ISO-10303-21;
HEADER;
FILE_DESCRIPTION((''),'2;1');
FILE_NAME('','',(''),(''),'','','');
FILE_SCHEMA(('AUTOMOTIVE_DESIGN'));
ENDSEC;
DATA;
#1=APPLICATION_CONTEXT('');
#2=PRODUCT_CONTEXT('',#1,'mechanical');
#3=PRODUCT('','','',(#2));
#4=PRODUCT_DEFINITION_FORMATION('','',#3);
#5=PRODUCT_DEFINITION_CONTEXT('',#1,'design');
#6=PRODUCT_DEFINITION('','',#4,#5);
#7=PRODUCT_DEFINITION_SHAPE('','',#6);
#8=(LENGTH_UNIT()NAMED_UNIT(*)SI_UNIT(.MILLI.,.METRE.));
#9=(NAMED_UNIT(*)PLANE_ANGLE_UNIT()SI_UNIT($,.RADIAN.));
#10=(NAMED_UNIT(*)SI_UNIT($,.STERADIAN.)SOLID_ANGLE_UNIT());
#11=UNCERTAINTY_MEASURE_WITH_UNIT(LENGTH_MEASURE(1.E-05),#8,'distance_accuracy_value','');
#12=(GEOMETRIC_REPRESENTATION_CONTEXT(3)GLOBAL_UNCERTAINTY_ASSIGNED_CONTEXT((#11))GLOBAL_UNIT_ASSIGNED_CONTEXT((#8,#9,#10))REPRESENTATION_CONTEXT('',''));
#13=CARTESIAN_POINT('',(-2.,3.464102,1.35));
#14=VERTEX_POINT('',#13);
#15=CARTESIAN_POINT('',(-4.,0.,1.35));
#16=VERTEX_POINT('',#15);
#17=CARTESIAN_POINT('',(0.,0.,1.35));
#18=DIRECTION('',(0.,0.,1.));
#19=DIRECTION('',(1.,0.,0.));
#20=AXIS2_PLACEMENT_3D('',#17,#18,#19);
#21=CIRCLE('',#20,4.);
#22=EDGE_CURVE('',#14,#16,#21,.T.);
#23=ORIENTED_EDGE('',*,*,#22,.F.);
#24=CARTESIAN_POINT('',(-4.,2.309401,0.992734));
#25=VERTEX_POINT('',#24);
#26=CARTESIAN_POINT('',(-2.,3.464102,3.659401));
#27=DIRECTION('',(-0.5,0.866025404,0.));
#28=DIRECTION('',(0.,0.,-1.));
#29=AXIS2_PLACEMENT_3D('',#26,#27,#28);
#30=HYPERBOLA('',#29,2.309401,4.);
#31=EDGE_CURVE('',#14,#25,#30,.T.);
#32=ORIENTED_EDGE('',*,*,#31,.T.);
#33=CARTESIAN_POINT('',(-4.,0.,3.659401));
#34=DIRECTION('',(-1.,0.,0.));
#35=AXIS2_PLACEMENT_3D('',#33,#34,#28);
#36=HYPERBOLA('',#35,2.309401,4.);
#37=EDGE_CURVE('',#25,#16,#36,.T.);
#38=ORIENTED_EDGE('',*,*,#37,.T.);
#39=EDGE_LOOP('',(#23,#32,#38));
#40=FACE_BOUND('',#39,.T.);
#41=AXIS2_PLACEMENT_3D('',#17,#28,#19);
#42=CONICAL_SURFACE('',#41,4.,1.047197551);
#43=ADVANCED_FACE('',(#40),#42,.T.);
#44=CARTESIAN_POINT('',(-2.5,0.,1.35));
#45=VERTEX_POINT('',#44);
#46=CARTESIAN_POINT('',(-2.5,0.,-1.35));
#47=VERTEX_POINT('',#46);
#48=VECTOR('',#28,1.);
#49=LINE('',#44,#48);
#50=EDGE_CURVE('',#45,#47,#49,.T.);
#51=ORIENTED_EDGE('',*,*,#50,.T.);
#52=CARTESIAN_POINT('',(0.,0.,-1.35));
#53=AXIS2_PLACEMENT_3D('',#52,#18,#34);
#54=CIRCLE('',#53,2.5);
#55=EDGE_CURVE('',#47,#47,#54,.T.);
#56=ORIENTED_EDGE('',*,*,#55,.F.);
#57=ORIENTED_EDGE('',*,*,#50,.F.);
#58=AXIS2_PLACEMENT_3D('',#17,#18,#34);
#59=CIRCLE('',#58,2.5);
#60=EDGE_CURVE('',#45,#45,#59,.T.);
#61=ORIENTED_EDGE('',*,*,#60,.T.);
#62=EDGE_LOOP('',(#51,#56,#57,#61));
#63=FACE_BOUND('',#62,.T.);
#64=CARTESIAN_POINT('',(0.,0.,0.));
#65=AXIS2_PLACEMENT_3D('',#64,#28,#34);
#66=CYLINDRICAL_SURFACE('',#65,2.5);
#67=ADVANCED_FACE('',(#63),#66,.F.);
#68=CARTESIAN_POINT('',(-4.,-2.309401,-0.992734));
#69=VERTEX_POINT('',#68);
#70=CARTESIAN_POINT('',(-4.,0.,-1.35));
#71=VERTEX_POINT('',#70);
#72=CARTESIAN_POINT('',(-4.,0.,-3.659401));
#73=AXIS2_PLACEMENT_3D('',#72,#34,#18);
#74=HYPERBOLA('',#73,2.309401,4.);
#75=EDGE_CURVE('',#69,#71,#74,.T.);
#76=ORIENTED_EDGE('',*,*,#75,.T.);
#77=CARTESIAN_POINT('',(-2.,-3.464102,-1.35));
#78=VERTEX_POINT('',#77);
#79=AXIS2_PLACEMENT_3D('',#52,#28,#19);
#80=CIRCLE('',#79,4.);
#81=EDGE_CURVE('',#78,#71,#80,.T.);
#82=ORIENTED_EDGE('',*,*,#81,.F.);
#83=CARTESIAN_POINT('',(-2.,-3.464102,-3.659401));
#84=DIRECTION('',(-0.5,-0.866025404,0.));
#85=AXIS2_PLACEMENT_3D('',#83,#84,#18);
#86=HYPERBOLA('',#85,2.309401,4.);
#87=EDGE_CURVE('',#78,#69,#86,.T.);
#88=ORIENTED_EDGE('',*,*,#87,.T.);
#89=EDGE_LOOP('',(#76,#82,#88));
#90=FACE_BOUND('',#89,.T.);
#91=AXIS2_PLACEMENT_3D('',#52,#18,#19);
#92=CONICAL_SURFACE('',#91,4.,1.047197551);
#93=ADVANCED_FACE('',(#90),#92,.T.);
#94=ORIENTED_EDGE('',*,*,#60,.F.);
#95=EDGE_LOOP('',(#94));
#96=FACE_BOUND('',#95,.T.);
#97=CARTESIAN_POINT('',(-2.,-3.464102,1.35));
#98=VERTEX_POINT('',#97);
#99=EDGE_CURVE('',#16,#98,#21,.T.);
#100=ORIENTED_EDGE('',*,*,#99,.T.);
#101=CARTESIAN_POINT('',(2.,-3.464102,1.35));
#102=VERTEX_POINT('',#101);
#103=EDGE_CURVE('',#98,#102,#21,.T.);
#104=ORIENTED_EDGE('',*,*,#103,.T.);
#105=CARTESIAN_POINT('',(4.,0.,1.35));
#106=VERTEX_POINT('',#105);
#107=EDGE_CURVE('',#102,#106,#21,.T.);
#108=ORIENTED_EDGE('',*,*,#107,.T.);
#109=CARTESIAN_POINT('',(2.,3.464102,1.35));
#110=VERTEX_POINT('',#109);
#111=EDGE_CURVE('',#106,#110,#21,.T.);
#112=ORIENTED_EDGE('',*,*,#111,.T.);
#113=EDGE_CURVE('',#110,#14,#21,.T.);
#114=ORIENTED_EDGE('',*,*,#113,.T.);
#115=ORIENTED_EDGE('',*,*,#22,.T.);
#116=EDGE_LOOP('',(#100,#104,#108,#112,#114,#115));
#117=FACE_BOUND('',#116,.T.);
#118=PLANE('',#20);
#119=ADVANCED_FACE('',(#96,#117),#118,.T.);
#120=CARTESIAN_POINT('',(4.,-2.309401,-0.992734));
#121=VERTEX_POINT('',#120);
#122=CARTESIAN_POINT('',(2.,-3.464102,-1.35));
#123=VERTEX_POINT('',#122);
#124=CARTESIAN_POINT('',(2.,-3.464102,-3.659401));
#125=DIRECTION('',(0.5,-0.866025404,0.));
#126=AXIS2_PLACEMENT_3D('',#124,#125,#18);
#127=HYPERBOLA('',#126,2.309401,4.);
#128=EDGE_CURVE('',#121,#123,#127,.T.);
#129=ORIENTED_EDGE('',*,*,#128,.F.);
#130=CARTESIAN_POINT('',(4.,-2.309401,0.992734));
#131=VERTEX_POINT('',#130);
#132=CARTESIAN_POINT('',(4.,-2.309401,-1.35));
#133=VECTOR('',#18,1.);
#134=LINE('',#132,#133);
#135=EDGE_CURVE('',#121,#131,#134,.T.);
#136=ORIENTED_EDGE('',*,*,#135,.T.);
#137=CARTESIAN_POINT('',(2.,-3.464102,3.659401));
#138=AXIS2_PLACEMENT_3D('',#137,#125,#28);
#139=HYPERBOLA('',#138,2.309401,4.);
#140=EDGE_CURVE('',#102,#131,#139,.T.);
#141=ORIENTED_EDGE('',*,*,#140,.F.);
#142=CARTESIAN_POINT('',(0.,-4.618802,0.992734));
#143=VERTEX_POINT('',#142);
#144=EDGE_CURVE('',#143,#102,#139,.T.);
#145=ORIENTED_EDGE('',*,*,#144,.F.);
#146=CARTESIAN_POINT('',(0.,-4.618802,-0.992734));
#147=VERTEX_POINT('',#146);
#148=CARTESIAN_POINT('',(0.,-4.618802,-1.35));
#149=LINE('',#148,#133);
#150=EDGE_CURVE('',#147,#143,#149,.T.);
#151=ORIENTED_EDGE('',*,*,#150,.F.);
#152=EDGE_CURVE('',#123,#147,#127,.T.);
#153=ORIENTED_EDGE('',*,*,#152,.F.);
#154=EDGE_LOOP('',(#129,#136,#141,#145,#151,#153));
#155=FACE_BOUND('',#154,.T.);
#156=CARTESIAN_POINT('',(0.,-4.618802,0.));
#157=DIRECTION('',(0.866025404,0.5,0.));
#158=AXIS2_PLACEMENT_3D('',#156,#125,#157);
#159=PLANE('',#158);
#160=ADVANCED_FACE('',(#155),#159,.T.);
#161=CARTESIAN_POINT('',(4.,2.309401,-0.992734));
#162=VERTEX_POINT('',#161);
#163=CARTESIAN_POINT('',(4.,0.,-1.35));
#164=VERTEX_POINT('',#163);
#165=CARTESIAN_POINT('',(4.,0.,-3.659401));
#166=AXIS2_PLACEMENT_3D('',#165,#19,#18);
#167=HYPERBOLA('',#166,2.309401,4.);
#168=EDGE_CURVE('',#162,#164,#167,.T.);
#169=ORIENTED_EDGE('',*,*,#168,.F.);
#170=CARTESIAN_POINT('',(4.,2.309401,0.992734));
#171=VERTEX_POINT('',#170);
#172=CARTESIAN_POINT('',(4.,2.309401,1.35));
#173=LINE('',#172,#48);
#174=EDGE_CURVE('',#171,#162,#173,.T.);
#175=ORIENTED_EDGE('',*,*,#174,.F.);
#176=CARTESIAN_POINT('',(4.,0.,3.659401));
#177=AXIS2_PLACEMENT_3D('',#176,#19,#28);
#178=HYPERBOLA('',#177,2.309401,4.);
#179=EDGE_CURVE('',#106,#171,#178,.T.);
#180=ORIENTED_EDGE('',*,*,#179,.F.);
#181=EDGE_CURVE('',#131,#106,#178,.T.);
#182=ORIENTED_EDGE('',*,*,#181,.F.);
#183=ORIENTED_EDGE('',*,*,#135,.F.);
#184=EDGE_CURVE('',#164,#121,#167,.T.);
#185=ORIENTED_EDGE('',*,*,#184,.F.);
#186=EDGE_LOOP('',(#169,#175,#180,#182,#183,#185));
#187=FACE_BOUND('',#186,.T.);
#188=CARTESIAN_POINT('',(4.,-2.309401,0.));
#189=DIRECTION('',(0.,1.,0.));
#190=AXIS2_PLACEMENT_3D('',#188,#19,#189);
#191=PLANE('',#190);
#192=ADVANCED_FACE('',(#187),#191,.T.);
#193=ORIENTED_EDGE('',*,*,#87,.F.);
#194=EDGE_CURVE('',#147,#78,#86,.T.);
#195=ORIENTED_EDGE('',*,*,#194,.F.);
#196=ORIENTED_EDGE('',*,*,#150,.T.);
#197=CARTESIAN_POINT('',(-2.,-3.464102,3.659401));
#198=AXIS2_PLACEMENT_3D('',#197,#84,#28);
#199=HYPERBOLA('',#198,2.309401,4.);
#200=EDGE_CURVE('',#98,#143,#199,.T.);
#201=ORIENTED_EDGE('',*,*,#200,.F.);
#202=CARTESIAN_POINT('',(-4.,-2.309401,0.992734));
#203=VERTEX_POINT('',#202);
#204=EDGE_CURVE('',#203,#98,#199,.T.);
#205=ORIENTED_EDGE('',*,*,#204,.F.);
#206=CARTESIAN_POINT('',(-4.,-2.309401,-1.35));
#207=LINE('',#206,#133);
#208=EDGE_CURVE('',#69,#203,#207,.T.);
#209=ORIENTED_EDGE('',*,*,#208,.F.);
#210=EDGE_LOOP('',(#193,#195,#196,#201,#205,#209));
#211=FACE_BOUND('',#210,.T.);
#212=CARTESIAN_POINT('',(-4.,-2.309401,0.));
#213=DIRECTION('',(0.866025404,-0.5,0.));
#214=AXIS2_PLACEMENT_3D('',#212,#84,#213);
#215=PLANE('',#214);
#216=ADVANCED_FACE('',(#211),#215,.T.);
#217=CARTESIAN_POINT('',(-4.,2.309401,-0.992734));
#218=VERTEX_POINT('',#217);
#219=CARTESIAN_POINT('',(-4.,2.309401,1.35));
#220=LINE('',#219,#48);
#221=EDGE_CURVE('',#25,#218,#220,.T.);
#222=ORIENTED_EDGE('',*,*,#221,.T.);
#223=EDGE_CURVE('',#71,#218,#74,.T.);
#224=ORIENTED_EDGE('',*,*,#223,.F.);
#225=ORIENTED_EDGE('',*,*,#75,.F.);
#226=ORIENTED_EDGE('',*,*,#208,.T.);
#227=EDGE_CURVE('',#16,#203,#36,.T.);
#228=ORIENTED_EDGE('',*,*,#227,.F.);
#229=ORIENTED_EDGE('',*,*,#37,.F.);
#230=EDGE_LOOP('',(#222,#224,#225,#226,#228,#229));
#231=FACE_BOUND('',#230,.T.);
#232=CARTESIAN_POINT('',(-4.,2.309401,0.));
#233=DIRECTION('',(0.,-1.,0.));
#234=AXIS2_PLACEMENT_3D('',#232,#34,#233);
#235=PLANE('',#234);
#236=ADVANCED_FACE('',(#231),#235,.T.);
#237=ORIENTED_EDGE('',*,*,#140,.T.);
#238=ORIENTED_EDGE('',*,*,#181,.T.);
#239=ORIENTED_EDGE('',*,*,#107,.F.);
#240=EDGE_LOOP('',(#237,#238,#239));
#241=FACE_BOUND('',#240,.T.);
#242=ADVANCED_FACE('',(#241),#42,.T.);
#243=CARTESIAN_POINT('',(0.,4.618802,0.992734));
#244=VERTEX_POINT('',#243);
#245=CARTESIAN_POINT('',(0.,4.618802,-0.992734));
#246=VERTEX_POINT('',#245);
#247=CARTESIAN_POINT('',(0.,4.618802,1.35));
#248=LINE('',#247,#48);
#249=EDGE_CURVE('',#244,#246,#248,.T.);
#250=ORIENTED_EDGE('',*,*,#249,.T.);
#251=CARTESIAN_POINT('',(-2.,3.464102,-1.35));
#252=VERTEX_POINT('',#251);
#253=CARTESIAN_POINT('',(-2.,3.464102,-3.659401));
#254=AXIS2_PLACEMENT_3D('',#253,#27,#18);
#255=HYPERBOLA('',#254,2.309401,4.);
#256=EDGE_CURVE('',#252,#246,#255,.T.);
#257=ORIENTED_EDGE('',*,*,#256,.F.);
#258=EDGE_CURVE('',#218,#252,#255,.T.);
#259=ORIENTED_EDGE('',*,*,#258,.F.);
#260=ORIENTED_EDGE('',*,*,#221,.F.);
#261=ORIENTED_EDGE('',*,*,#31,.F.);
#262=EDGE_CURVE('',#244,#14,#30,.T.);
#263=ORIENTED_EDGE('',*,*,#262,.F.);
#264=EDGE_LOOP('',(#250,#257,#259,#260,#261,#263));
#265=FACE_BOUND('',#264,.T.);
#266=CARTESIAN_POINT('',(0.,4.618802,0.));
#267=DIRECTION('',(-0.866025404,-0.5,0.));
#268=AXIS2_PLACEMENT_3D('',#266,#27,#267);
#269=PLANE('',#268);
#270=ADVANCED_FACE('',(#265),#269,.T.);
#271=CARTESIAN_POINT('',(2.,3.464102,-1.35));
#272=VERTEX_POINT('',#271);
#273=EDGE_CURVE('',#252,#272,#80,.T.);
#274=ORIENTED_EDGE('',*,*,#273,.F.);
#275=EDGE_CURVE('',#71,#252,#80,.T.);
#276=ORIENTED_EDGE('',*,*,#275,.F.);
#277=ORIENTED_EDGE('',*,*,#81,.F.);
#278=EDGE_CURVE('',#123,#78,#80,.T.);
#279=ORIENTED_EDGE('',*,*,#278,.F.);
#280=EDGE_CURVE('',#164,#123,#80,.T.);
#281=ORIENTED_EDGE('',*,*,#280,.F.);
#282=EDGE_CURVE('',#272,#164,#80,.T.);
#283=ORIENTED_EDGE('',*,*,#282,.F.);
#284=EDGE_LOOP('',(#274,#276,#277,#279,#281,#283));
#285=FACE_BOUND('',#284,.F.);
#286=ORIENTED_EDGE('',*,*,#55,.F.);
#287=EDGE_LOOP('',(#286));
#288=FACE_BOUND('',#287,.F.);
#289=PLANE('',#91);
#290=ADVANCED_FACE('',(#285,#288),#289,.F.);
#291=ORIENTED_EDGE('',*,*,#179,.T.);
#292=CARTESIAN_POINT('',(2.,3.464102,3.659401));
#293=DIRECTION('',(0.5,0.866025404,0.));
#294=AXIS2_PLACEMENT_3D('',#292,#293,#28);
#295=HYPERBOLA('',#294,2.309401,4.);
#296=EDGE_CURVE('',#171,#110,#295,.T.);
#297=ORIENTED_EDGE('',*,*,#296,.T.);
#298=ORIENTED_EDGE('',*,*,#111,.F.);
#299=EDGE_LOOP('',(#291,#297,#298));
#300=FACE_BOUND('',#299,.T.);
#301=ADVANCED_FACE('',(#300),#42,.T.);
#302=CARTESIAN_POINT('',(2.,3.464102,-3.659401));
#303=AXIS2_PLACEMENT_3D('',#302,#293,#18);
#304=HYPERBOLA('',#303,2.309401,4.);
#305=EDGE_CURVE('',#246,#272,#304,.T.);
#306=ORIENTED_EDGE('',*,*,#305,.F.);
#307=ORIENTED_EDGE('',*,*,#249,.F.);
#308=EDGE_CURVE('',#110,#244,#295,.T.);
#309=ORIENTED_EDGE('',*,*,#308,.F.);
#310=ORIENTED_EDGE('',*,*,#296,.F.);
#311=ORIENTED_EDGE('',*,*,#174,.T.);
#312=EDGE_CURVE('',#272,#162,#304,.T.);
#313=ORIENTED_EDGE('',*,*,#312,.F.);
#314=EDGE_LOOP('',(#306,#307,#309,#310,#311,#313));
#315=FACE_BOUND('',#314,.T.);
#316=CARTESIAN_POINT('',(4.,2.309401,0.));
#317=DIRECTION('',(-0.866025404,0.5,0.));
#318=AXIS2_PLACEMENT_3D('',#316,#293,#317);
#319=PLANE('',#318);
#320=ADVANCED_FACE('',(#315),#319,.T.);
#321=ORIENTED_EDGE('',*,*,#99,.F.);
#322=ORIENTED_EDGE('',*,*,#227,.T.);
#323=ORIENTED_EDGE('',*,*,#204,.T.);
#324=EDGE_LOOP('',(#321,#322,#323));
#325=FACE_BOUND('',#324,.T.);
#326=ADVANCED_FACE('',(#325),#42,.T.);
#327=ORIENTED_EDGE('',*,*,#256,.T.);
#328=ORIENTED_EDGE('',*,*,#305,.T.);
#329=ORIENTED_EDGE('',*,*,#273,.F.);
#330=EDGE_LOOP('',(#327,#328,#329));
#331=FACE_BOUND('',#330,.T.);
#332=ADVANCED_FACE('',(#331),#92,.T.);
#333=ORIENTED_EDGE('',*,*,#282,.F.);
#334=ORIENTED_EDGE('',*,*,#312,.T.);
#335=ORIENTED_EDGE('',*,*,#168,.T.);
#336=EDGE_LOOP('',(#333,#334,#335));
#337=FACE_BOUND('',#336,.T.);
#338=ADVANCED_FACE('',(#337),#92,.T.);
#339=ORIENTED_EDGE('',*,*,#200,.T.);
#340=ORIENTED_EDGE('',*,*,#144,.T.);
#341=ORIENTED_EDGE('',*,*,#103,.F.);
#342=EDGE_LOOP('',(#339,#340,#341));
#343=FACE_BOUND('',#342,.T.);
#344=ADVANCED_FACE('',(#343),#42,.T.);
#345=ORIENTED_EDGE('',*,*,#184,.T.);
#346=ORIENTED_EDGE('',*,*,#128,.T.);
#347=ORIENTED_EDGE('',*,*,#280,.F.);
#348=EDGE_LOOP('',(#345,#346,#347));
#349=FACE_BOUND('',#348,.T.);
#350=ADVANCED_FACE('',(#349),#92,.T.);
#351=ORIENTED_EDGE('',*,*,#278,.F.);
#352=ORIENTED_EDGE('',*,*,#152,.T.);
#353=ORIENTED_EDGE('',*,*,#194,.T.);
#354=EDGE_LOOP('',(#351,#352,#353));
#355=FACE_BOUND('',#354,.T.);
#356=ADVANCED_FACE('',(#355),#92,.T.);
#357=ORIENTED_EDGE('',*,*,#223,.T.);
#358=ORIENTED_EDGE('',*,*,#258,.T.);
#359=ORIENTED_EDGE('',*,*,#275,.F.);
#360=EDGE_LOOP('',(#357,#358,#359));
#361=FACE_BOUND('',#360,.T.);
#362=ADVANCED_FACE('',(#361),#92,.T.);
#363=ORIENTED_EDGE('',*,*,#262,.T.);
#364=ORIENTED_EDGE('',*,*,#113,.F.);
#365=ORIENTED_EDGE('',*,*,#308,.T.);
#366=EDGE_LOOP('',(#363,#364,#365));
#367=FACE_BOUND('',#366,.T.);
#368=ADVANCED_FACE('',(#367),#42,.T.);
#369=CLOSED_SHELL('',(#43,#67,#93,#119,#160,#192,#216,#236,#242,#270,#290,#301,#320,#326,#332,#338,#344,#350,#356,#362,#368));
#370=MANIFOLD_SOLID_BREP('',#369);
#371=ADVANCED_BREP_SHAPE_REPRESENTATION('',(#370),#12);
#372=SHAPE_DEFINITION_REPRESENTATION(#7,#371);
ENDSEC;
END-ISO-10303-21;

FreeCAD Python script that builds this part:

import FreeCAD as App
import Part
import Sketcher

V = App.Vector
Q = App.Units.Quantity


def faces_at(feature, points):
    """Names of the faces that lie closest to the given points."""
    faces = feature.Shape.Faces
    near = lambda p: min(range(len(faces)), key=lambda i: faces[i].distToShape(Part.Vertex(*p))[0])
    return sorted({f"Face{near(p) + 1}" for p in points})

doc = App.newDocument("Part")
body = doc.addObject("PartDesign::Body", "Body")

sketch1 = body.newObject("Sketcher::SketchObject", "Sketch")
sketch1.AttachmentSupport = (doc.getObject("XY_Plane"), [""])
sketch1.MapMode = "FlatFace"
sketch1.addGeometry([
    Part.LineSegment(V(-4, 2.3, 0), V(-4, -2.3, 0)),
    Part.LineSegment(V(-4, -2.3, 0), V(0, -4.6, 0)),
    Part.LineSegment(V(0, -4.6, 0), V(4, -2.3, 0)),
    Part.LineSegment(V(4, -2.3, 0), V(4, 2.3, 0)),
    Part.LineSegment(V(4, 2.3, 0), V(0, 4.6, 0)),
    Part.LineSegment(V(0, 4.6, 0), V(-4, 2.3, 0)),
    Part.Circle(V(0, 0, 0), V(0, 0, 1), 2.5),
], False)
sketch1.addConstraint([
    Sketcher.Constraint("Coincident", 0, 2, 1, 1),
    Sketcher.Constraint("Coincident", 1, 2, 2, 1),
    Sketcher.Constraint("Coincident", 2, 2, 3, 1),
    Sketcher.Constraint("Coincident", 3, 2, 4, 1),
    Sketcher.Constraint("Coincident", 4, 2, 5, 1),
    Sketcher.Constraint("Coincident", 5, 2, 0, 1),
    Sketcher.Constraint("Vertical", 0),
    Sketcher.Constraint("Vertical", 3),
    Sketcher.Constraint("Coincident", 6, 3, -1, 1),
    Sketcher.Constraint("Symmetric", 0, 2, 3, 2, -1, 1),
    Sketcher.Constraint("Symmetric", 1, 2, 4, 2, -1, 1),
    Sketcher.Constraint("PointOnObject", 1, 2, -2),
    Sketcher.Constraint("Parallel", 2, 5),
    Sketcher.Constraint("Horizontal", 0, 2, 2, 2),
    Sketcher.Constraint("Diameter", 6, Q("5 mm")),
    Sketcher.Constraint("Angle", 1, Q("-30 deg")),
    Sketcher.Constraint("DistanceX", 0, 2, -1, 1, Q("4 mm")),
    Sketcher.Constraint("DistanceY", 0, 2, -1, 1, Q("2.309401 mm")),
])
pad1 = body.newObject("PartDesign::Pad", "Pad")
pad1.Profile = sketch1
pad1.Length = 2.7
pad1.Midplane = True
body2 = doc.addObject("PartDesign::Body", "Body001")

sketch2 = body2.newObject("Sketcher::SketchObject", "Sketch001")
sketch2.AttachmentSupport = (doc.getObject("XY_Plane001"), [""])
sketch2.MapMode = "FlatFace"
sketch2.AttachmentOffset = App.Placement(V(0, 0, 1.35), App.Rotation())
sketch2.addGeometry([
    Part.LineSegment(V(-10.9, 11.5, 0), V(-10.9, -11.5, 0)),
    Part.LineSegment(V(-10.9, -11.5, 0), V(10.9, -11.5, 0)),
    Part.LineSegment(V(10.9, -11.5, 0), V(10.9, 11.5, 0)),
    Part.LineSegment(V(10.9, 11.5, 0), V(-10.9, 11.5, 0)),
    Part.Circle(V(0, 0, 0), V(0, 0, 1), 4),
], False)
sketch2.addConstraint([
    Sketcher.Constraint("Coincident", 0, 2, 1, 1),
    Sketcher.Constraint("Coincident", 1, 2, 2, 1),
    Sketcher.Constraint("Coincident", 2, 2, 3, 1),
    Sketcher.Constraint("Coincident", 3, 2, 0, 1),
    Sketcher.Constraint("Vertical", 0),
    Sketcher.Constraint("Horizontal", 1),
    Sketcher.Constraint("Vertical", 2),
    Sketcher.Constraint("Horizontal", 3),
    Sketcher.Constraint("Coincident", 4, 3, -1, 1),
    Sketcher.Constraint("Symmetric", 0, 2, 2, 2, -1, 1),
    Sketcher.Constraint("Diameter", 4, Q("8 mm")),
    Sketcher.Constraint("DistanceX", 1, 1, 1, 2, Q("21.856 mm")),
    Sketcher.Constraint("DistanceY", 0, 2, 0, 1, Q("23.094 mm")),
])
pad2 = body2.newObject("PartDesign::Pad", "Pad001")
pad2.Profile = sketch2
pad2.Length = 2.7
pad2.Reversed = True
doc.recompute()

datumplane = body2.newObject("PartDesign::Plane", "DatumPlane")
datumplane.AttachmentSupport = (doc.getObject("XY_Plane001"), [""])
datumplane.MapMode = "FlatFace"
datumplane.AttachmentOffset = App.Placement(V(0, 0, 1.35), App.Rotation())
draft = body2.newObject("PartDesign::Draft", "Draft")
draft.Base = (pad2, faces_at(pad2, [
    (0, -11.547, 0),
    (10.928, 0, 0),
    (0, 11.547, 0),
    (-10.928, 0, 0),
    (-4, 0, 0),
]))
draft.NeutralPlane = (datumplane, [""])
draft.Angle = 60
draft.Reversed = True
doc.recompute()

boolean = body.newObject("PartDesign::Boolean", "Boolean")
boolean.Type = "Cut"
boolean.addObjects([body2])
body3 = doc.addObject("PartDesign::Body", "Body002")

sketch3 = body3.newObject("Sketcher::SketchObject", "Sketch002")
sketch3.AttachmentSupport = (doc.getObject("XY_Plane002"), [""])
sketch3.MapMode = "FlatFace"
sketch3.AttachmentOffset = App.Placement(V(0, 0, -1.35), App.Rotation())
sketch3.addGeometry([
    Part.LineSegment(V(-10.9, -11.5, 0), V(-10.9, 11.5, 0)),
    Part.LineSegment(V(-10.9, 11.5, 0), V(10.9, 11.5, 0)),
    Part.LineSegment(V(10.9, 11.5, 0), V(10.9, -11.5, 0)),
    Part.LineSegment(V(10.9, -11.5, 0), V(-10.9, -11.5, 0)),
    Part.Circle(V(0, 0, 0), V(0, 0, 1), 4),
], False)
sketch3.addConstraint([
    Sketcher.Constraint("Coincident", 0, 2, 1, 1),
    Sketcher.Constraint("Coincident", 1, 2, 2, 1),
    Sketcher.Constraint("Coincident", 2, 2, 3, 1),
    Sketcher.Constraint("Coincident", 3, 2, 0, 1),
    Sketcher.Constraint("Vertical", 0),
    Sketcher.Constraint("Horizontal", 1),
    Sketcher.Constraint("Vertical", 2),
    Sketcher.Constraint("Horizontal", 3),
    Sketcher.Constraint("Coincident", 4, 3, -1, 1),
    Sketcher.Constraint("Symmetric", 0, 2, 2, 2, -1, 1),
    Sketcher.Constraint("Diameter", 4, Q("8 mm")),
    Sketcher.Constraint("DistanceX", 1, 1, 1, 2, Q("21.856 mm")),
    Sketcher.Constraint("DistanceY", 0, 1, 0, 2, Q("23.094 mm")),
])
pad3 = body3.newObject("PartDesign::Pad", "Pad002")
pad3.Profile = sketch3
pad3.Length = 2.7
doc.recompute()

datumplane2 = body3.newObject("PartDesign::Plane", "DatumPlane001")
datumplane2.AttachmentSupport = (doc.getObject("XY_Plane002"), [""])
datumplane2.MapMode = "FlatFace"
datumplane2.AttachmentOffset = App.Placement(V(0, 0, -1.35), App.Rotation())
draft2 = body3.newObject("PartDesign::Draft", "Draft001")
draft2.Base = (pad3, faces_at(pad3, [
    (0, -11.547, 0),
    (10.928, 0, 0),
    (0, 11.547, 0),
    (-10.928, 0, 0),
    (-4, 0, 0),
]))
draft2.NeutralPlane = (datumplane2, [""])
draft2.Angle = 60
draft2.Reversed = False
doc.recompute()

boolean2 = body.newObject("PartDesign::Boolean", "Boolean001")
boolean2.Type = "Cut"
boolean2.addObjects([body3])

doc.recompute()
